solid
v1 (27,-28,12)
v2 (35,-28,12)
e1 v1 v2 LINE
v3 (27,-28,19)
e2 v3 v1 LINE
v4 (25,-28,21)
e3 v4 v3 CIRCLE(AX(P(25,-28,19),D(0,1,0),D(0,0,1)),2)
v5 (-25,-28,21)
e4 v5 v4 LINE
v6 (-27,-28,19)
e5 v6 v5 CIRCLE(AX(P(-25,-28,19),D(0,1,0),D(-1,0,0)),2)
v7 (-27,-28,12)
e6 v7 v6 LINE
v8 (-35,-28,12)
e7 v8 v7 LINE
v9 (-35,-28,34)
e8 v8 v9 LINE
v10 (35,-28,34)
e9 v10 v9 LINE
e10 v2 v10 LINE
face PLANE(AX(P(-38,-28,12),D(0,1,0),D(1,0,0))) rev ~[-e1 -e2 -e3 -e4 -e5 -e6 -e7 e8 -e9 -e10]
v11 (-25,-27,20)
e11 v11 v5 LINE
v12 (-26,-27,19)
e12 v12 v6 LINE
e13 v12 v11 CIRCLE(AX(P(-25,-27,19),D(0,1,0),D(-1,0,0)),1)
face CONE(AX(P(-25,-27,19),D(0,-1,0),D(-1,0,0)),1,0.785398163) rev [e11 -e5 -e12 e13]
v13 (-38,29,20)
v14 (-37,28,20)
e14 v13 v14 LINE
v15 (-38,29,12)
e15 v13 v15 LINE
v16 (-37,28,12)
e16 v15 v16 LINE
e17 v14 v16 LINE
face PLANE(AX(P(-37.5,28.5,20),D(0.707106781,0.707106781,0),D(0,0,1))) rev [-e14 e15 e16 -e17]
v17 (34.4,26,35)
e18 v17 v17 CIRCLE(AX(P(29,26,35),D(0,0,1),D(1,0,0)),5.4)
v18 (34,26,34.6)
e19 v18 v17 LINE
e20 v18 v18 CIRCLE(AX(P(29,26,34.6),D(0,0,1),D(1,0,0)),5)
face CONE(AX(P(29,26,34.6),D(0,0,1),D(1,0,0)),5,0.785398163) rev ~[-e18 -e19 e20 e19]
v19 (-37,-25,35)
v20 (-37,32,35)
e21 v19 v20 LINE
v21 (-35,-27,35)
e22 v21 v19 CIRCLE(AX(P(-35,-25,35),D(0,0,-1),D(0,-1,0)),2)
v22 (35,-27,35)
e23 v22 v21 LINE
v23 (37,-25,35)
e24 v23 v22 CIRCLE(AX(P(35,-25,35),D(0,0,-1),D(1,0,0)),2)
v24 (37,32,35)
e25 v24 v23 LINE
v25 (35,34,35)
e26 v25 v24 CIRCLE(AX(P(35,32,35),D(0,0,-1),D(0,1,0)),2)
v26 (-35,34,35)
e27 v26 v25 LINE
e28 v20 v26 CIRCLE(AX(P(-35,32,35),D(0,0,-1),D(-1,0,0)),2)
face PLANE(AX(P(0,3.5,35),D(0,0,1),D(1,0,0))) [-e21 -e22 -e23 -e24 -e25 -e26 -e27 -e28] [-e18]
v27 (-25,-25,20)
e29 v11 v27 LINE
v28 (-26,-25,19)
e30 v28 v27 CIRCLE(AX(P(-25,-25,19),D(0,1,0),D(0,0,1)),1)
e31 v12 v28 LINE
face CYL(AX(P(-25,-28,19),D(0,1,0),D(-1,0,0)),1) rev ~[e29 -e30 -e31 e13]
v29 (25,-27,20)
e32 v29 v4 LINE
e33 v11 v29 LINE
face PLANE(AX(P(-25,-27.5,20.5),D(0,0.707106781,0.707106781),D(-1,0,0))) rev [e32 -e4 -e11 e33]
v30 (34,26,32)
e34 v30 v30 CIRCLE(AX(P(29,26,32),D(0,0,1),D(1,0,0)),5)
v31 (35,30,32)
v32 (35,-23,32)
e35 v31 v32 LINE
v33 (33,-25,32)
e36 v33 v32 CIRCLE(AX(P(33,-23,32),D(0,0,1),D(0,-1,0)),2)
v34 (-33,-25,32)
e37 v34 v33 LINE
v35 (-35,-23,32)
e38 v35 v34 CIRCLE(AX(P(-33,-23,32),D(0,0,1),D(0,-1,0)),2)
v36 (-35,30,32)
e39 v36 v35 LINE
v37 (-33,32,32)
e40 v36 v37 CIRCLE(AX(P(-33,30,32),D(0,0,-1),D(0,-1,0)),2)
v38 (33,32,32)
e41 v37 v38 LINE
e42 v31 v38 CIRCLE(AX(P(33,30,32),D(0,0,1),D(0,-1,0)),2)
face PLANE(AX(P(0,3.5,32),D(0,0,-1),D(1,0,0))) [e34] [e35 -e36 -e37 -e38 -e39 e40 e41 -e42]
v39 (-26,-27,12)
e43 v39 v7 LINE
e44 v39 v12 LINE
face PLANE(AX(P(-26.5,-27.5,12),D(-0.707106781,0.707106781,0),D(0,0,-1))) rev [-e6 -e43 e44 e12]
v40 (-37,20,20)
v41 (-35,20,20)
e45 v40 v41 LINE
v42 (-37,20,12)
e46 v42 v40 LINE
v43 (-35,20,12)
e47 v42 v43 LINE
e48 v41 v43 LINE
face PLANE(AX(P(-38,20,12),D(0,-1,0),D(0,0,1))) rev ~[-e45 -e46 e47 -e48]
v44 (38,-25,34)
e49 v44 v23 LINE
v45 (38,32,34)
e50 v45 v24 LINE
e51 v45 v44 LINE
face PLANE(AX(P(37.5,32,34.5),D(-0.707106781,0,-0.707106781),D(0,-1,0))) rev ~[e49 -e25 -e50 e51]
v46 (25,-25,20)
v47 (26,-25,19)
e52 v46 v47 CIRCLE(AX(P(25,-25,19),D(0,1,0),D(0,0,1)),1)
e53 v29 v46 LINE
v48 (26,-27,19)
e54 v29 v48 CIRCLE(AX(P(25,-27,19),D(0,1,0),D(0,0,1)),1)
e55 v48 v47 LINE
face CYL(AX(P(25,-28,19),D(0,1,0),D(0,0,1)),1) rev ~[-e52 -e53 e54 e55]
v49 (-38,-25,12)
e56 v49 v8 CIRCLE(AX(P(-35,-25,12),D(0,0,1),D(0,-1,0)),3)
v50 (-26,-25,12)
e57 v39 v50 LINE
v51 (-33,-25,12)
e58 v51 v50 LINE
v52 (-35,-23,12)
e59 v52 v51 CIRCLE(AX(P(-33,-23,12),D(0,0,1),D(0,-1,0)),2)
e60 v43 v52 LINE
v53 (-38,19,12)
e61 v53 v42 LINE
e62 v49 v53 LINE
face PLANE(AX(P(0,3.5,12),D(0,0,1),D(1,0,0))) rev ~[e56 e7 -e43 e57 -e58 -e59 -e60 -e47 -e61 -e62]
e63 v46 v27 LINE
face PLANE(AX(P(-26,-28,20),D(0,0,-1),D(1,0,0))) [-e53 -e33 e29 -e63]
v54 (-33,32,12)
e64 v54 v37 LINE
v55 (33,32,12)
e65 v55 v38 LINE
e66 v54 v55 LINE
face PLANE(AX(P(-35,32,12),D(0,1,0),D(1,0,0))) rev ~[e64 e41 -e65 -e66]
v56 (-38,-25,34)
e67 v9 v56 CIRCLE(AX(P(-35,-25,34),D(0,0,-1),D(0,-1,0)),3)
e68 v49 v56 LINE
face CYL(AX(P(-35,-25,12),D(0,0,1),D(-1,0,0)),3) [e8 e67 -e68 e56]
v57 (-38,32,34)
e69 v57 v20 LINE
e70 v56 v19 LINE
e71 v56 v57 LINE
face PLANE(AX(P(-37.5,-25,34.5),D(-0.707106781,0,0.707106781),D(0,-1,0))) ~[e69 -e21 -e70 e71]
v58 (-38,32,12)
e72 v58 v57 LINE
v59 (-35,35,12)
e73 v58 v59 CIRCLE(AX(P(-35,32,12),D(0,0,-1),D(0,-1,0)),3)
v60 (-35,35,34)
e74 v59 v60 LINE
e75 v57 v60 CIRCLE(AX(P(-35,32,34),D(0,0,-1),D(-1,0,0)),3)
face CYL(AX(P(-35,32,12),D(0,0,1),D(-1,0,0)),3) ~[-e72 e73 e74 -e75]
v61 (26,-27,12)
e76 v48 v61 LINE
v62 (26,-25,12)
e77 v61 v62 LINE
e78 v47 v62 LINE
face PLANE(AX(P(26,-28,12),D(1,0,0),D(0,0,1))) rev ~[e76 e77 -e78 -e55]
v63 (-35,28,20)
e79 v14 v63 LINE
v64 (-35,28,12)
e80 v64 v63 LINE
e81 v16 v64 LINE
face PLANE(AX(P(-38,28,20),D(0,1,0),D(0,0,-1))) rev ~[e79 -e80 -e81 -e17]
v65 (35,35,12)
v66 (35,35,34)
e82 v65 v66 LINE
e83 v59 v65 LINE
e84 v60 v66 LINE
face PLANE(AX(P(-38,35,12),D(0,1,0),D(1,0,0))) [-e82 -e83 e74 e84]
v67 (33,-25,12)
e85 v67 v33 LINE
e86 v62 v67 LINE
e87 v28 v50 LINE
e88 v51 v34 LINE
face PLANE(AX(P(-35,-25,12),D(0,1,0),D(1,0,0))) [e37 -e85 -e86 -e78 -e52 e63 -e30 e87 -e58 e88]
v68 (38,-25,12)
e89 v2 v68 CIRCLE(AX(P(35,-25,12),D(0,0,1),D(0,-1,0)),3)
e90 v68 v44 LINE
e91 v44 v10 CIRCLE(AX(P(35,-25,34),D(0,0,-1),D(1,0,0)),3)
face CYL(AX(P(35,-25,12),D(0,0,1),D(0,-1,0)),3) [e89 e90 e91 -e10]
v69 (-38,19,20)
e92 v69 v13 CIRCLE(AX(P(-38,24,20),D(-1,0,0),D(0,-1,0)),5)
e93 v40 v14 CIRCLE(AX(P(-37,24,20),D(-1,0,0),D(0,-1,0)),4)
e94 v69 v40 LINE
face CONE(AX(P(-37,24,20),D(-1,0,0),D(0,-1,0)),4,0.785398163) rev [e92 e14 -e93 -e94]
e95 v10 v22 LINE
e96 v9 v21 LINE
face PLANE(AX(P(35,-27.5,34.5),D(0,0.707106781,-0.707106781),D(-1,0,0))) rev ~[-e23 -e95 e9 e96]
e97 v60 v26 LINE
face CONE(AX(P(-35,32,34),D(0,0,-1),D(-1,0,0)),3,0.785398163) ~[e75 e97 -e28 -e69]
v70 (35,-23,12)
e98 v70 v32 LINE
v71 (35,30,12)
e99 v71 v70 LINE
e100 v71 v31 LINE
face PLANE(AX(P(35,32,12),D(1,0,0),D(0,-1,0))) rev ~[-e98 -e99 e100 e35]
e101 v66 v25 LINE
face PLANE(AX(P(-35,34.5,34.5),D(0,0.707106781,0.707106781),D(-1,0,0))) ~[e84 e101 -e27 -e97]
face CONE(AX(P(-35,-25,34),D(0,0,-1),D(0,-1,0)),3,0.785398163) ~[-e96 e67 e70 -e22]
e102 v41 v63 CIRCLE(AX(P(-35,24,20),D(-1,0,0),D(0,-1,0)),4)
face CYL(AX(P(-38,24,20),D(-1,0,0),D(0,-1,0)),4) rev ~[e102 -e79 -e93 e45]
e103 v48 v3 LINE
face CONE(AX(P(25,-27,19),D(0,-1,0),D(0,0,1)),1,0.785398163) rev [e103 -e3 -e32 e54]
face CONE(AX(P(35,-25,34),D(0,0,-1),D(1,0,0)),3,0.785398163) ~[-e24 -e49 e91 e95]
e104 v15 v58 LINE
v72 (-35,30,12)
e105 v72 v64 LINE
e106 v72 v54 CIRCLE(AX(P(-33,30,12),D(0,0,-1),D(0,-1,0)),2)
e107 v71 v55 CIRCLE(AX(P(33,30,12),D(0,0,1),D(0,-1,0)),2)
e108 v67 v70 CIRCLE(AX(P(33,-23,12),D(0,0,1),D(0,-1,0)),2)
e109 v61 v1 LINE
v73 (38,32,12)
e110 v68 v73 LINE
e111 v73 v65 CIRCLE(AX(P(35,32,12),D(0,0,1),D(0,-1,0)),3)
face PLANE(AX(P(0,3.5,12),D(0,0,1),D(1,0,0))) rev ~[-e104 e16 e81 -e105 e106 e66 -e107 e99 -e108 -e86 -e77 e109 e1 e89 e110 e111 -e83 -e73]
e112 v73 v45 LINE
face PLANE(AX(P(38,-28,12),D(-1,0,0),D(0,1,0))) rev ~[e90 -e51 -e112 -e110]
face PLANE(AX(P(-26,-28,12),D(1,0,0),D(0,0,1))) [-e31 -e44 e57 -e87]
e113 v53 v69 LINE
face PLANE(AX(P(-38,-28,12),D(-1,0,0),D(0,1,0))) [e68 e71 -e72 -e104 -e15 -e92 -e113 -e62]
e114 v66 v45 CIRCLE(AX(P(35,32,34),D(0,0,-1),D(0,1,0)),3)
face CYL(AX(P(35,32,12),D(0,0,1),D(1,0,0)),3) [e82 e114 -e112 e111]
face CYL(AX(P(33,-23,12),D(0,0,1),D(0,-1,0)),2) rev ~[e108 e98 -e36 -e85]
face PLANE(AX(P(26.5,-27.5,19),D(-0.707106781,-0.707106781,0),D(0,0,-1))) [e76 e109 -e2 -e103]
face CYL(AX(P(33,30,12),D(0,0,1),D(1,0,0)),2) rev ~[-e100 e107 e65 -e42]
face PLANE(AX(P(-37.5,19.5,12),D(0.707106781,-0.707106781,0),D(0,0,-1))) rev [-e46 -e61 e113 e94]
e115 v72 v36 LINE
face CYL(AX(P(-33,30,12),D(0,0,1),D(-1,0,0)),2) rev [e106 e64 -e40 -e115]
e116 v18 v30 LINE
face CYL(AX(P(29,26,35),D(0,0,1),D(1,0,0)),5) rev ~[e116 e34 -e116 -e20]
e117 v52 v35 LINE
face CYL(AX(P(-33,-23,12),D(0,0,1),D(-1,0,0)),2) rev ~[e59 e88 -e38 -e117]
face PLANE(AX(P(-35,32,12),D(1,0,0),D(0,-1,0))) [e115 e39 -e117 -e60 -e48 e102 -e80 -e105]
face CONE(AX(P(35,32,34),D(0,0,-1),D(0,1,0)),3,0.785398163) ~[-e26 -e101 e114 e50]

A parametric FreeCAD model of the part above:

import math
import FreeCAD as App
import Part
import Sketcher
from FreeCAD import Vector
Q = App.Units.Quantity


def edges_at(feature, points):
    """Names of the edges that pass closest to the given points."""
    edges = feature.Shape.Edges
    near = lambda p: min(range(len(edges)), key=lambda i: edges[i].distToShape(Part.Vertex(*p))[0])
    return sorted({f"Edge{near(p) + 1}" for p in points})


def add_polygon(sketch, points):
    """Adds a closed chain of lines whose ends are joined by coincident constraints."""
    first, n = sketch.GeometryCount, len(points)
    for a, b in zip(points, points[1:] + points[:1]):
        sketch.addGeometry(Part.LineSegment(App.Vector(*a, 0), App.Vector(*b, 0)), False)
    for i in range(n):
        sketch.addConstraint(Sketcher.Constraint("Coincident", first + i, 2, first + (i + 1) % n, 1))

doc = App.newDocument("Part")
body = doc.addObject("PartDesign::Body", "Body")

sketch1 = body.newObject("Sketcher::SketchObject", "Sketch")
sketch1.AttachmentSupport = (doc.getObject("XY_Plane"), [""])
sketch1.MapMode = "FlatFace"
add_polygon(sketch1, [(-38, 35), (-38, -28), (38, -28), (38, 35)])
sketch1.addConstraint([
    Sketcher.Constraint("Vertical", 0),
    Sketcher.Constraint("Horizontal", 1),
    Sketcher.Constraint("Vertical", 2),
    Sketcher.Constraint("Horizontal", 3),
    Sketcher.Constraint("DistanceX", 1, 1, 1, 2, Q("76 mm")),
    Sketcher.Constraint("DistanceY", 0, 2, 0, 1, Q("63 mm")),
    Sketcher.Constraint("DistanceX", 0, 2, -1, 1, Q("38 mm")),
    Sketcher.Constraint("DistanceY", 0, 2, -1, 1, Q("28 mm")),
])
pad1 = body.newObject("PartDesign::Pad", "Pad")
pad1.Profile = sketch1
pad1.Length = 23
doc.recompute()

fillet = body.newObject("PartDesign::Fillet", "Fillet")
fillet.Base = (pad1, edges_at(pad1, [
    (-38, 35, 11.5),
    (-38, -28, 11.5),
    (38, -28, 11.5),
    (38, 35, 11.5),
]))
fillet.Radius = 3

sketch2 = body.newObject("Sketcher::SketchObject", "Sketch001")
sketch2.AttachmentSupport = (doc.getObject("XY_Plane"), [""])
sketch2.MapMode = "FlatFace"
add_polygon(sketch2, [(-35, -25), (-35, 32), (35, 32), (35, -25)])
sketch2.addConstraint([
    Sketcher.Constraint("Vertical", 0),
    Sketcher.Constraint("Horizontal", 1),
    Sketcher.Constraint("Vertical", 2),
    Sketcher.Constraint("Horizontal", 3),
    Sketcher.Constraint("DistanceX", 1, 1, 1, 2, Q("70 mm")),
    Sketcher.Constraint("DistanceY", 0, 1, 0, 2, Q("57 mm")),
    Sketcher.Constraint("DistanceX", 0, 2, -1, 1, Q("35 mm")),
    Sketcher.Constraint("DistanceY", -1, 1, 0, 2, Q("32 mm")),
])
pocket1 = body.newObject("PartDesign::Pocket", "Pocket")
pocket1.Profile = sketch2
pocket1.Length = 20
pocket1.Reversed = True

sketch3 = body.newObject("Sketcher::SketchObject", "Sketch002")
sketch3.AttachmentSupport = (doc.getObject("XZ_Plane"), [""])
sketch3.MapMode = "FlatFace"
sketch3.AttachmentOffset = App.Placement(Vector(0, 0, 28), App.Rotation())
add_polygon(sketch3, [(-26, 8), (-26, 0), (26, 0), (26, 8)])
sketch3.addConstraint([
    Sketcher.Constraint("Vertical", 0),
    Sketcher.Constraint("Horizontal", 1),
    Sketcher.Constraint("Vertical", 2),
    Sketcher.Constraint("Horizontal", 3),
    Sketcher.Constraint("Symmetric", 0, 2, 1, 2, -1, 1),
    Sketcher.Constraint("DistanceX", 1, 1, 1, 2, Q("52 mm")),
    Sketcher.Constraint("DistanceY", 0, 2, 0, 1, Q("8 mm")),
])
pocket2 = body.newObject("PartDesign::Pocket", "Pocket001")
pocket2.Profile = sketch3
pocket2.Length = 5

sketch4 = body.newObject("Sketcher::SketchObject", "Sketch003")
sketch4.AttachmentSupport = (doc.getObject("YZ_Plane"), [""])
sketch4.MapMode = "FlatFace"
sketch4.AttachmentOffset = App.Placement(Vector(0, 0, -38), App.Rotation())
sketch4.addGeometry([
    Part.ArcOfCircle(Part.Circle(Vector(24, 8, 0), Vector(0, 0, 1), 4), math.radians(0), math.radians(180)),
    Part.LineSegment(Vector(28, 8, 0), Vector(28, 0, 0)),
    Part.LineSegment(Vector(28, 0, 0), Vector(20, 0, 0)),
    Part.LineSegment(Vector(20, 0, 0), Vector(20, 8, 0)),
], False)
sketch4.addConstraint([
    Sketcher.Constraint("Tangent", 0, 1, 1, 1),
    Sketcher.Constraint("Coincident", 1, 2, 2, 1),
    Sketcher.Constraint("Coincident", 2, 2, 3, 1),
    Sketcher.Constraint("Tangent", 3, 2, 0, 2),
    Sketcher.Constraint("Vertical", 1),
    Sketcher.Constraint("Horizontal", 2),
    Sketcher.Constraint("Vertical", 3),
    Sketcher.Constraint("PointOnObject", 1, 2, -1),
    Sketcher.Constraint("Equal", 2, 1),
    Sketcher.Constraint("Radius", 0, Q("4 mm")),
    Sketcher.Constraint("DistanceX", -1, 1, 0, 3, Q("24 mm")),
])
pocket3 = body.newObject("PartDesign::Pocket", "Pocket002")
pocket3.Profile = sketch4
pocket3.Length = 5
pocket3.Reversed = True
doc.recompute()

fillet2 = body.newObject("PartDesign::Fillet", "Fillet001")
fillet2.Base = (pocket3, edges_at(pocket3, [
    (-35, 32, 10),
    (-35, -25, 10),
    (35, -25, 10),
    (35, 32, 10),
]))
fillet2.Radius = 2
doc.recompute()

fillet3 = body.newObject("PartDesign::Fillet", "Fillet002")
fillet3.Base = (fillet2, edges_at(fillet2, [(-26, -26.5, 8), (26, -26.5, 8)]))
fillet3.Radius = 1
doc.recompute()

chamfer = body.newObject("PartDesign::Chamfer", "Chamfer")
chamfer.Base = (fillet3, edges_at(fillet3, [
    (0, 35, 23),
    (-37.121, 34.121, 23),
    (37.121, 34.121, 23),
    (-38, 3.5, 23),
    (38, 3.5, 23),
    (-37.121, -27.121, 23),
    (37.121, -27.121, 23),
    (0, -28, 23),
    (-38, 28, 4),
    (-38, 24, 12),
    (-38, 20, 4),
    (-26, -28, 3.5),
    (-25.707, -28, 7.707),
    (0, -28, 8),
    (26, -28, 3.5),
    (25.707, -28, 7.707),
]))
chamfer.Size = 1

sketch5 = body.newObject("Sketcher::SketchObject", "Sketch004")
sketch5.AttachmentSupport = (doc.getObject("XY_Plane"), [""])
sketch5.MapMode = "FlatFace"
sketch5.AttachmentOffset = App.Placement(Vector(0, 0, 23), App.Rotation())
sketch5.addGeometry(Part.Circle(Vector(29, 26, 0), Vector(0, 0, 1), 5), False)
sketch5.addConstraint([
    Sketcher.Constraint("Diameter", 0, Q("10 mm")),
    Sketcher.Constraint("DistanceX", -1, 1, 0, 3, Q("29 mm")),
    Sketcher.Constraint("DistanceY", -1, 1, 0, 3, Q("26 mm")),
])
pocket4 = body.newObject("PartDesign::Pocket", "Pocket003")
pocket4.Profile = sketch5
pocket4.Type = "ThroughAll"
doc.recompute()

chamfer2 = body.newObject("PartDesign::Chamfer", "Chamfer001")
chamfer2.Base = (pocket4, edges_at(pocket4, [(24, 26, 23)]))
chamfer2.Size = 0.4
body2 = doc.addObject("PartDesign::Body", "Body001")
doc.recompute()

body.Placement = App.Placement(Vector(0, 0, 12), App.Rotation(Vector(0, 0, 1), 0))
boolean = body2.newObject("PartDesign::Boolean", "Boolean")
boolean.Type = "Fuse"
boolean.addObjects([body])

doc.recompute()
